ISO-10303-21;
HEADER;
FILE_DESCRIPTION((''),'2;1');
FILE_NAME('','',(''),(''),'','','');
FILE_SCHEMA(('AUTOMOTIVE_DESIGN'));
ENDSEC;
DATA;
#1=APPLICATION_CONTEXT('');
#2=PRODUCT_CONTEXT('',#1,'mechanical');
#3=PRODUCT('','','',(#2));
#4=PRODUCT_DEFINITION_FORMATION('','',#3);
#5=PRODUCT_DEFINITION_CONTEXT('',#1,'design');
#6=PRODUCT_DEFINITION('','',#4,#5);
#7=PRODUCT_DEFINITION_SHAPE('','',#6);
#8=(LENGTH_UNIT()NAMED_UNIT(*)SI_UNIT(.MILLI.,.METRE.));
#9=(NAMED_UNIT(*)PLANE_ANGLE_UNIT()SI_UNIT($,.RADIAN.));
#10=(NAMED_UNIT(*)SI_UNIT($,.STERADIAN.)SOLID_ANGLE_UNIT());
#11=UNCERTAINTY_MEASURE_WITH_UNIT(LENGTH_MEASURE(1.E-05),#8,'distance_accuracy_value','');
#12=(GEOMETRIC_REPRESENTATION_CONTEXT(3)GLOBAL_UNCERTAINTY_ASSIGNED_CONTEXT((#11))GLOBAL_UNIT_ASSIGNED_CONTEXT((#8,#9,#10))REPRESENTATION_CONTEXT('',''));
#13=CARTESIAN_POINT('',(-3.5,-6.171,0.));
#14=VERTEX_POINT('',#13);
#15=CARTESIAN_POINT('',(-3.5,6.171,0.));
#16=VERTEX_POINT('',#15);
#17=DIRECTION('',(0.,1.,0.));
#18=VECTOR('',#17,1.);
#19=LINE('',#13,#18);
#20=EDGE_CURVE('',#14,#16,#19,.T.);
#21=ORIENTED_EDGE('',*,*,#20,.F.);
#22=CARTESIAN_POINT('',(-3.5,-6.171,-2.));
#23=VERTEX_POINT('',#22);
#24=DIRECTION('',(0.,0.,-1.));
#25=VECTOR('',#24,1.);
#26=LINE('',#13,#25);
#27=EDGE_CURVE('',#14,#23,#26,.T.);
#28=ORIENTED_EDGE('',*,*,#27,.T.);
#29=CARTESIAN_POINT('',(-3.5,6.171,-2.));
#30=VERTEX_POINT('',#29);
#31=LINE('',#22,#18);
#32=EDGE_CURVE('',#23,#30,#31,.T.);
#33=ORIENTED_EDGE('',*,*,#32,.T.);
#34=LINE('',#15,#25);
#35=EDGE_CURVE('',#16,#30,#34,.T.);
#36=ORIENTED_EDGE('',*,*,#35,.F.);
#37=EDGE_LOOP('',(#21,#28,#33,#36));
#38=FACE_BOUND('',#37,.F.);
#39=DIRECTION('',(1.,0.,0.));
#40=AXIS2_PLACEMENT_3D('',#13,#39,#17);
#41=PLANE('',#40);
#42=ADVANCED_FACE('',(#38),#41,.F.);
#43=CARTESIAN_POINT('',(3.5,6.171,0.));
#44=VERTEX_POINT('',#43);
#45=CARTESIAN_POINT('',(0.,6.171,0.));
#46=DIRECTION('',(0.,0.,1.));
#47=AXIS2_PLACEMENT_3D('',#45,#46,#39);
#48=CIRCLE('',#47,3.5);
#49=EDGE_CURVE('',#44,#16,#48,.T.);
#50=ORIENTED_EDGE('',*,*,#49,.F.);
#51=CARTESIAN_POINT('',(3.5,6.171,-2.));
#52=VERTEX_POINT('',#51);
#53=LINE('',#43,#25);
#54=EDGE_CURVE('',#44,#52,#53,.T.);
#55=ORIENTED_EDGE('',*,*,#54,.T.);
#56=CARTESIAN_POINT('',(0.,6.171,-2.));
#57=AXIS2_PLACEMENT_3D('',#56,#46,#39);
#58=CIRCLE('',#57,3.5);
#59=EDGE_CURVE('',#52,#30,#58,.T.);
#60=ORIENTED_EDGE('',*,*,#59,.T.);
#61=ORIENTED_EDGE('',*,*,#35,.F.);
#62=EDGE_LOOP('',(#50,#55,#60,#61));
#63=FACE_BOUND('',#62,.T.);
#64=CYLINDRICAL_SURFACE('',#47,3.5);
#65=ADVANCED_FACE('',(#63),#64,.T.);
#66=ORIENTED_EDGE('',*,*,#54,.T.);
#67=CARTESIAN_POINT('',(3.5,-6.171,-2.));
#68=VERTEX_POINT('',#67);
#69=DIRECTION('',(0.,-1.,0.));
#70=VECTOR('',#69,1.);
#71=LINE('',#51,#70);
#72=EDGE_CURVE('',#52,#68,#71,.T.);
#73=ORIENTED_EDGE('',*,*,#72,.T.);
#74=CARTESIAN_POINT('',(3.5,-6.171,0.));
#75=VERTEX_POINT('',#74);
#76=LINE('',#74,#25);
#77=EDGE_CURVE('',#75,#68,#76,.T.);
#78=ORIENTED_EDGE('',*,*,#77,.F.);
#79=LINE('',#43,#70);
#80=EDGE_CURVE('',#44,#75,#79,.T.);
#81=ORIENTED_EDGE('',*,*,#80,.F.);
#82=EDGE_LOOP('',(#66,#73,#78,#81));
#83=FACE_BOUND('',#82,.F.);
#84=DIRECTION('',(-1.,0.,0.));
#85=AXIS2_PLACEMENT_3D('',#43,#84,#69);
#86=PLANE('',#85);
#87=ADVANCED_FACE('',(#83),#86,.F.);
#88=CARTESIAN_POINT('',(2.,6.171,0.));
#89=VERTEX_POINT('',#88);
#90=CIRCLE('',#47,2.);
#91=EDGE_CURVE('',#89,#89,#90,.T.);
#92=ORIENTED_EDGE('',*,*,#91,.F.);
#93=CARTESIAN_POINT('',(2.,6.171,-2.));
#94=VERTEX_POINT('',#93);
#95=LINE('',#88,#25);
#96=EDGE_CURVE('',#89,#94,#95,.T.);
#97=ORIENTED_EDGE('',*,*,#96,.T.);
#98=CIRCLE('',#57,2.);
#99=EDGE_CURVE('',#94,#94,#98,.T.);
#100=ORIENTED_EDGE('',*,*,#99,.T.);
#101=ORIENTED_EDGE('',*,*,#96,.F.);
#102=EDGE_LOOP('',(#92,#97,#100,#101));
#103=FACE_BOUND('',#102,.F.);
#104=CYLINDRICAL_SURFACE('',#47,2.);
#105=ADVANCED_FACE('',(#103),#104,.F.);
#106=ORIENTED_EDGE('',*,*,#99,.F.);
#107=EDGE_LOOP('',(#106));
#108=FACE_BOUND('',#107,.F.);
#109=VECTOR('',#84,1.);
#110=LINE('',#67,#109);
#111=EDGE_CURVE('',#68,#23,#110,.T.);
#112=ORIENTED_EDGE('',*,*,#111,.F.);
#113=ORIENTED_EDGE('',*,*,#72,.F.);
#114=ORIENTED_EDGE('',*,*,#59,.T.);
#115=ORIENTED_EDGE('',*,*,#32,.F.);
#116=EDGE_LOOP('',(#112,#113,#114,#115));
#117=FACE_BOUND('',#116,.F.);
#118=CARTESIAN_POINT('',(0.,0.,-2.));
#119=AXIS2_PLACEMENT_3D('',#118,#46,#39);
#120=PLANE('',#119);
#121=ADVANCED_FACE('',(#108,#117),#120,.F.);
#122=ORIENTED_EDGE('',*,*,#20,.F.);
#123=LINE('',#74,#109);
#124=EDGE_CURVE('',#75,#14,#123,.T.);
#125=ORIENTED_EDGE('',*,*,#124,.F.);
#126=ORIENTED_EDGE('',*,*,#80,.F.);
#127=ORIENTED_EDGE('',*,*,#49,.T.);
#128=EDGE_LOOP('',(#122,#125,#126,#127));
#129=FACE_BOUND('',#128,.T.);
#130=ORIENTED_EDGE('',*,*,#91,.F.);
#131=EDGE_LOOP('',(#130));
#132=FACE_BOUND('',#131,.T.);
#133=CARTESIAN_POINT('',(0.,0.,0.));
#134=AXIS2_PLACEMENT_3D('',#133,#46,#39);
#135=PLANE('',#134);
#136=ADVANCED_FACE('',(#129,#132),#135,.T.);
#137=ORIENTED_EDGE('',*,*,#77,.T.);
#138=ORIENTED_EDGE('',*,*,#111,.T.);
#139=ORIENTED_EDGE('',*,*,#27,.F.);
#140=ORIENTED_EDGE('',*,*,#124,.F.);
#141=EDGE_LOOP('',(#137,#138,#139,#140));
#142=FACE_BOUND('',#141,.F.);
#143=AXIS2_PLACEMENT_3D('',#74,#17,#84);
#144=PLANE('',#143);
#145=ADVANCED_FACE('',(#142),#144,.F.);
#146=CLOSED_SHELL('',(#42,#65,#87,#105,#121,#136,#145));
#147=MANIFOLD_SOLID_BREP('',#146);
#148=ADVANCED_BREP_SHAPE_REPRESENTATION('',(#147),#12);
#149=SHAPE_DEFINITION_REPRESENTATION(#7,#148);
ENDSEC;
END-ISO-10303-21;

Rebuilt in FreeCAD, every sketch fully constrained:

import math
import FreeCAD as App
import Part
import Sketcher

doc = App.newDocument("Part")
body = doc.addObject("PartDesign::Body", "Body")

# Sketch on XY plane
sketch1 = body.newObject("Sketcher::SketchObject", "Sketch")
sketch1.AttachmentSupport = (doc.getObject("XY_Plane"), [""])
sketch1.MapMode = "FlatFace"
sketch1.addGeometry([
    Part.LineSegment(App.Vector(3.5, -6.2, 0), App.Vector(3.5, 6.2, 0)),  # 0
    Part.ArcOfCircle(Part.Circle(App.Vector(0, 6.2, 0), App.Vector(0, 0, 1), 3.5), math.radians(0), math.radians(180)),  # 1
    Part.LineSegment(App.Vector(-3.5, 6.2, 0), App.Vector(-3.5, -6.2, 0)),  # 2
    Part.LineSegment(App.Vector(-3.5, -6.2, 0), App.Vector(3.5, -6.2, 0)),  # 3
    Part.Circle(App.Vector(0, 6.2, 0), App.Vector(0, 0, 1), 2),  # 4
], False)
sketch1.addConstraint([
    Sketcher.Constraint("Tangent", 0, 2, 1, 1),
    Sketcher.Constraint("Tangent", 1, 2, 2, 1),
    Sketcher.Constraint("Coincident", 2, 2, 3, 1),
    Sketcher.Constraint("Coincident", 3, 2, 0, 1),
    Sketcher.Constraint("Vertical", 0),
    Sketcher.Constraint("Vertical", 2),
    Sketcher.Constraint("Horizontal", 3),
    Sketcher.Constraint("Coincident", 4, 3, 1, 3),
    Sketcher.Constraint("Symmetric", 0, 2, 2, 2, -1, 1),
    Sketcher.Constraint("Diameter", 4, 4.0),
    Sketcher.Constraint("Radius", 1, 3.5),
    Sketcher.Constraint("DistanceY", 0, 1, 0, 2, 12.342),
])
pad1 = body.newObject("PartDesign::Pad", "Pad")
pad1.Profile = sketch1
pad1.Length = 2
pad1.Reversed = True

doc.recompute()
